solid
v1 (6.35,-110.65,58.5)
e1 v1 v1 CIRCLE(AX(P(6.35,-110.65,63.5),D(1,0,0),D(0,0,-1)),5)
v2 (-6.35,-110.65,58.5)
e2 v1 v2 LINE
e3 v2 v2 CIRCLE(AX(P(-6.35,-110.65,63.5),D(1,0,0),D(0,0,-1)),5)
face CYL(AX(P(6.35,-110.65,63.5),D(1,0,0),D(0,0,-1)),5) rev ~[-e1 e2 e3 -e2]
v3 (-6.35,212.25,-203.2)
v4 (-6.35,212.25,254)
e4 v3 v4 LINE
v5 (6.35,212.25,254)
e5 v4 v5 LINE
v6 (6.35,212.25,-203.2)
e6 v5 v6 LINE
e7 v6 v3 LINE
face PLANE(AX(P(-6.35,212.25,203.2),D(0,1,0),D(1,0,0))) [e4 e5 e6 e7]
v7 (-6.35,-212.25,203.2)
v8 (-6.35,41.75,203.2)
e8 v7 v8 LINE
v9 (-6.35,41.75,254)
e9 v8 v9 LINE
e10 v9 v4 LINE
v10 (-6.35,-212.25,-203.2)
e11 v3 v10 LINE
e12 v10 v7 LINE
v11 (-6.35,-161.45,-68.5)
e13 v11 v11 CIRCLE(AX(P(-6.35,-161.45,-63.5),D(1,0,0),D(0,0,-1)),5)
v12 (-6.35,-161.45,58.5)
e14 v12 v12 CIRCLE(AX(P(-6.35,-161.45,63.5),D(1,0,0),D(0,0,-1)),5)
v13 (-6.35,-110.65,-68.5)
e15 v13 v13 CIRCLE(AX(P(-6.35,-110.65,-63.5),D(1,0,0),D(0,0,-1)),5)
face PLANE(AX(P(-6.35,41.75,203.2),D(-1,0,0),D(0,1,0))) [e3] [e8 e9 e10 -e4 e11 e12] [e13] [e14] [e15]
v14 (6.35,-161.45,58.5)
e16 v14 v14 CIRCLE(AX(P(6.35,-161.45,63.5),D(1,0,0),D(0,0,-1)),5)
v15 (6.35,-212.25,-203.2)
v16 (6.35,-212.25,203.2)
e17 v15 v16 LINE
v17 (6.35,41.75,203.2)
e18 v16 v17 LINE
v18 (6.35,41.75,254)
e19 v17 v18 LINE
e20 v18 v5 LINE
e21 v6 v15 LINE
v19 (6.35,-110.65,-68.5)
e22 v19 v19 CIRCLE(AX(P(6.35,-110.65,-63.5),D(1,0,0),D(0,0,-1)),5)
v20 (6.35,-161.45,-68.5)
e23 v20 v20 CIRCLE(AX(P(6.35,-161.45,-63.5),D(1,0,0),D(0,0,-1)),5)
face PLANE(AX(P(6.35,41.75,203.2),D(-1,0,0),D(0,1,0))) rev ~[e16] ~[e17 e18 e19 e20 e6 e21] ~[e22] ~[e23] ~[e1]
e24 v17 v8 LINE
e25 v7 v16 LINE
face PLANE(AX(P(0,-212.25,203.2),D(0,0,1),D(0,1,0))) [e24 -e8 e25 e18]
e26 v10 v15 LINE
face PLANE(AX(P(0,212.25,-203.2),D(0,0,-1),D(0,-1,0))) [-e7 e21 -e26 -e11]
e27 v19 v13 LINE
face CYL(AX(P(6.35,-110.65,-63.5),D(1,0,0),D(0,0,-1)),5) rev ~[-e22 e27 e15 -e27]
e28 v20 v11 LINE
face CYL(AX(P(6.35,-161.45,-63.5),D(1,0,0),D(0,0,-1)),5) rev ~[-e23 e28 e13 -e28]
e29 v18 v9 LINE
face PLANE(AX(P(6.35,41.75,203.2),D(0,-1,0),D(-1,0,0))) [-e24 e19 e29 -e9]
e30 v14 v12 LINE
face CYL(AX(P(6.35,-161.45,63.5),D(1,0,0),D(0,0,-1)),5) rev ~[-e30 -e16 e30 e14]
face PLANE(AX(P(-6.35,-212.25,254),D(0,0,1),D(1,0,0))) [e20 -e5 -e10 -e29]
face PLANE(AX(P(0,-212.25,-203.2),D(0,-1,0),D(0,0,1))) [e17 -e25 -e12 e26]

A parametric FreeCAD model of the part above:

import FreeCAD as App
import Part
import Sketcher
Q = App.Units.Quantity

doc = App.newDocument("Part")
body = doc.addObject("PartDesign::Body", "Body")

sketch1 = body.newObject("Sketcher::SketchObject", "Sketch")
sketch1.AttachmentSupport = (doc.getObject("YZ_Plane"), [""])
sketch1.MapMode = "FlatFace"
sketch1.addGeometry([
    Part.LineSegment(App.Vector(212, 203, 0), App.Vector(-212, 203, 0)),
    Part.LineSegment(App.Vector(-212, 203, 0), App.Vector(-212, -203, 0)),
    Part.LineSegment(App.Vector(-212, -203, 0), App.Vector(212, -203, 0)),
    Part.LineSegment(App.Vector(212, -203, 0), App.Vector(212, 203, 0)),
], False)
sketch1.addConstraint([
    Sketcher.Constraint("Coincident", 0, 2, 1, 1),
    Sketcher.Constraint("Coincident", 1, 2, 2, 1),
    Sketcher.Constraint("Coincident", 2, 2, 3, 1),
    Sketcher.Constraint("Coincident", 3, 2, 0, 1),
    Sketcher.Constraint("Horizontal", 0),
    Sketcher.Constraint("Vertical", 1),
    Sketcher.Constraint("Horizontal", 2),
    Sketcher.Constraint("Vertical", 3),
    Sketcher.Constraint("Symmetric", 0, 2, 2, 2, -1, 1),
    Sketcher.Constraint("DistanceY", 1, 2, 1, 1, Q("16 in")),
    Sketcher.Constraint("DistanceX", 0, 2, 0, 1, Q("16.7126 in")),
])
pad1 = body.newObject("PartDesign::Pad", "Pad")
pad1.Profile = sketch1
pad1.Length = Q("0.5 in")
pad1.Midplane = True

sketch2 = body.newObject("Sketcher::SketchObject", "Sketch001")
sketch2.AttachmentSupport = (doc.getObject("YZ_Plane"), [""])
sketch2.MapMode = "FlatFace"
sketch2.AttachmentOffset = App.Placement(App.Vector(0, 0, 0.25 * 25.4), App.Rotation())
sketch2.addGeometry([
    Part.Circle(App.Vector(-161, 64, 0), App.Vector(0, 0, 1), 5),
    Part.Circle(App.Vector(-161, -64, 0), App.Vector(0, 0, 1), 5),
    Part.Circle(App.Vector(-111, 64, 0), App.Vector(0, 0, 1), 5),
    Part.Circle(App.Vector(-111, -64, 0), App.Vector(0, 0, 1), 5),
], False)
sketch2.addConstraint([
    Sketcher.Constraint("Equal", 0, 1),
    Sketcher.Constraint("Equal", 1, 2),
    Sketcher.Constraint("Equal", 2, 3),
    Sketcher.Constraint("Symmetric", 0, 3, 1, 3, -1),
    Sketcher.Constraint("Symmetric", 2, 3, 3, 3, -1),
    Sketcher.Constraint("Horizontal", 0, 3, 2, 3),
    Sketcher.Constraint("DistanceY", 1, 3, 0, 3, Q("5 in")),
    Sketcher.Constraint("DistanceX", 0, 3, 2, 3, Q("2 in")),
    Sketcher.Constraint("Diameter", 0, Q("0.3937 in")),
    Sketcher.Constraint("DistanceX", 0, 3, -1, 1, Q("6.3563 in")),
])
pocket1 = body.newObject("PartDesign::Pocket", "Pocket")
pocket1.Profile = sketch2
pocket1.Length = Q("0.5 in")

sketch3 = body.newObject("Sketcher::SketchObject", "Sketch002")
sketch3.AttachmentSupport = (doc.getObject("XY_Plane"), [""])
sketch3.MapMode = "FlatFace"
sketch3.AttachmentOffset = App.Placement(App.Vector(0, 0, 8 * 25.4), App.Rotation())
sketch3.addGeometry([
    Part.LineSegment(App.Vector(6, 212, 0), App.Vector(-6, 212, 0)),
    Part.LineSegment(App.Vector(-6, 212, 0), App.Vector(-6, 42, 0)),
    Part.LineSegment(App.Vector(-6, 42, 0), App.Vector(6, 42, 0)),
    Part.LineSegment(App.Vector(6, 42, 0), App.Vector(6, 212, 0)),
], False)
sketch3.addConstraint([
    Sketcher.Constraint("Coincident", 0, 2, 1, 1),
    Sketcher.Constraint("Coincident", 1, 2, 2, 1),
    Sketcher.Constraint("Coincident", 2, 2, 3, 1),
    Sketcher.Constraint("Coincident", 3, 2, 0, 1),
    Sketcher.Constraint("Horizontal", 0),
    Sketcher.Constraint("Vertical", 1),
    Sketcher.Constraint("Horizontal", 2),
    Sketcher.Constraint("Vertical", 3),
    Sketcher.Constraint("DistanceX", 0, 2, 0, 1, Q("0.5 in")),
    Sketcher.Constraint("DistanceY", 1, 2, 1, 1, Q("6.7126 in")),
    Sketcher.Constraint("DistanceX", 0, 2, -1, 1, Q("0.25 in")),
    Sketcher.Constraint("DistanceY", -1, 1, 0, 2, Q("8.3563 in")),
])
pad2 = body.newObject("PartDesign::Pad", "Pad001")
pad2.Profile = sketch3
pad2.Length = Q("2 in")

doc.recompute()
